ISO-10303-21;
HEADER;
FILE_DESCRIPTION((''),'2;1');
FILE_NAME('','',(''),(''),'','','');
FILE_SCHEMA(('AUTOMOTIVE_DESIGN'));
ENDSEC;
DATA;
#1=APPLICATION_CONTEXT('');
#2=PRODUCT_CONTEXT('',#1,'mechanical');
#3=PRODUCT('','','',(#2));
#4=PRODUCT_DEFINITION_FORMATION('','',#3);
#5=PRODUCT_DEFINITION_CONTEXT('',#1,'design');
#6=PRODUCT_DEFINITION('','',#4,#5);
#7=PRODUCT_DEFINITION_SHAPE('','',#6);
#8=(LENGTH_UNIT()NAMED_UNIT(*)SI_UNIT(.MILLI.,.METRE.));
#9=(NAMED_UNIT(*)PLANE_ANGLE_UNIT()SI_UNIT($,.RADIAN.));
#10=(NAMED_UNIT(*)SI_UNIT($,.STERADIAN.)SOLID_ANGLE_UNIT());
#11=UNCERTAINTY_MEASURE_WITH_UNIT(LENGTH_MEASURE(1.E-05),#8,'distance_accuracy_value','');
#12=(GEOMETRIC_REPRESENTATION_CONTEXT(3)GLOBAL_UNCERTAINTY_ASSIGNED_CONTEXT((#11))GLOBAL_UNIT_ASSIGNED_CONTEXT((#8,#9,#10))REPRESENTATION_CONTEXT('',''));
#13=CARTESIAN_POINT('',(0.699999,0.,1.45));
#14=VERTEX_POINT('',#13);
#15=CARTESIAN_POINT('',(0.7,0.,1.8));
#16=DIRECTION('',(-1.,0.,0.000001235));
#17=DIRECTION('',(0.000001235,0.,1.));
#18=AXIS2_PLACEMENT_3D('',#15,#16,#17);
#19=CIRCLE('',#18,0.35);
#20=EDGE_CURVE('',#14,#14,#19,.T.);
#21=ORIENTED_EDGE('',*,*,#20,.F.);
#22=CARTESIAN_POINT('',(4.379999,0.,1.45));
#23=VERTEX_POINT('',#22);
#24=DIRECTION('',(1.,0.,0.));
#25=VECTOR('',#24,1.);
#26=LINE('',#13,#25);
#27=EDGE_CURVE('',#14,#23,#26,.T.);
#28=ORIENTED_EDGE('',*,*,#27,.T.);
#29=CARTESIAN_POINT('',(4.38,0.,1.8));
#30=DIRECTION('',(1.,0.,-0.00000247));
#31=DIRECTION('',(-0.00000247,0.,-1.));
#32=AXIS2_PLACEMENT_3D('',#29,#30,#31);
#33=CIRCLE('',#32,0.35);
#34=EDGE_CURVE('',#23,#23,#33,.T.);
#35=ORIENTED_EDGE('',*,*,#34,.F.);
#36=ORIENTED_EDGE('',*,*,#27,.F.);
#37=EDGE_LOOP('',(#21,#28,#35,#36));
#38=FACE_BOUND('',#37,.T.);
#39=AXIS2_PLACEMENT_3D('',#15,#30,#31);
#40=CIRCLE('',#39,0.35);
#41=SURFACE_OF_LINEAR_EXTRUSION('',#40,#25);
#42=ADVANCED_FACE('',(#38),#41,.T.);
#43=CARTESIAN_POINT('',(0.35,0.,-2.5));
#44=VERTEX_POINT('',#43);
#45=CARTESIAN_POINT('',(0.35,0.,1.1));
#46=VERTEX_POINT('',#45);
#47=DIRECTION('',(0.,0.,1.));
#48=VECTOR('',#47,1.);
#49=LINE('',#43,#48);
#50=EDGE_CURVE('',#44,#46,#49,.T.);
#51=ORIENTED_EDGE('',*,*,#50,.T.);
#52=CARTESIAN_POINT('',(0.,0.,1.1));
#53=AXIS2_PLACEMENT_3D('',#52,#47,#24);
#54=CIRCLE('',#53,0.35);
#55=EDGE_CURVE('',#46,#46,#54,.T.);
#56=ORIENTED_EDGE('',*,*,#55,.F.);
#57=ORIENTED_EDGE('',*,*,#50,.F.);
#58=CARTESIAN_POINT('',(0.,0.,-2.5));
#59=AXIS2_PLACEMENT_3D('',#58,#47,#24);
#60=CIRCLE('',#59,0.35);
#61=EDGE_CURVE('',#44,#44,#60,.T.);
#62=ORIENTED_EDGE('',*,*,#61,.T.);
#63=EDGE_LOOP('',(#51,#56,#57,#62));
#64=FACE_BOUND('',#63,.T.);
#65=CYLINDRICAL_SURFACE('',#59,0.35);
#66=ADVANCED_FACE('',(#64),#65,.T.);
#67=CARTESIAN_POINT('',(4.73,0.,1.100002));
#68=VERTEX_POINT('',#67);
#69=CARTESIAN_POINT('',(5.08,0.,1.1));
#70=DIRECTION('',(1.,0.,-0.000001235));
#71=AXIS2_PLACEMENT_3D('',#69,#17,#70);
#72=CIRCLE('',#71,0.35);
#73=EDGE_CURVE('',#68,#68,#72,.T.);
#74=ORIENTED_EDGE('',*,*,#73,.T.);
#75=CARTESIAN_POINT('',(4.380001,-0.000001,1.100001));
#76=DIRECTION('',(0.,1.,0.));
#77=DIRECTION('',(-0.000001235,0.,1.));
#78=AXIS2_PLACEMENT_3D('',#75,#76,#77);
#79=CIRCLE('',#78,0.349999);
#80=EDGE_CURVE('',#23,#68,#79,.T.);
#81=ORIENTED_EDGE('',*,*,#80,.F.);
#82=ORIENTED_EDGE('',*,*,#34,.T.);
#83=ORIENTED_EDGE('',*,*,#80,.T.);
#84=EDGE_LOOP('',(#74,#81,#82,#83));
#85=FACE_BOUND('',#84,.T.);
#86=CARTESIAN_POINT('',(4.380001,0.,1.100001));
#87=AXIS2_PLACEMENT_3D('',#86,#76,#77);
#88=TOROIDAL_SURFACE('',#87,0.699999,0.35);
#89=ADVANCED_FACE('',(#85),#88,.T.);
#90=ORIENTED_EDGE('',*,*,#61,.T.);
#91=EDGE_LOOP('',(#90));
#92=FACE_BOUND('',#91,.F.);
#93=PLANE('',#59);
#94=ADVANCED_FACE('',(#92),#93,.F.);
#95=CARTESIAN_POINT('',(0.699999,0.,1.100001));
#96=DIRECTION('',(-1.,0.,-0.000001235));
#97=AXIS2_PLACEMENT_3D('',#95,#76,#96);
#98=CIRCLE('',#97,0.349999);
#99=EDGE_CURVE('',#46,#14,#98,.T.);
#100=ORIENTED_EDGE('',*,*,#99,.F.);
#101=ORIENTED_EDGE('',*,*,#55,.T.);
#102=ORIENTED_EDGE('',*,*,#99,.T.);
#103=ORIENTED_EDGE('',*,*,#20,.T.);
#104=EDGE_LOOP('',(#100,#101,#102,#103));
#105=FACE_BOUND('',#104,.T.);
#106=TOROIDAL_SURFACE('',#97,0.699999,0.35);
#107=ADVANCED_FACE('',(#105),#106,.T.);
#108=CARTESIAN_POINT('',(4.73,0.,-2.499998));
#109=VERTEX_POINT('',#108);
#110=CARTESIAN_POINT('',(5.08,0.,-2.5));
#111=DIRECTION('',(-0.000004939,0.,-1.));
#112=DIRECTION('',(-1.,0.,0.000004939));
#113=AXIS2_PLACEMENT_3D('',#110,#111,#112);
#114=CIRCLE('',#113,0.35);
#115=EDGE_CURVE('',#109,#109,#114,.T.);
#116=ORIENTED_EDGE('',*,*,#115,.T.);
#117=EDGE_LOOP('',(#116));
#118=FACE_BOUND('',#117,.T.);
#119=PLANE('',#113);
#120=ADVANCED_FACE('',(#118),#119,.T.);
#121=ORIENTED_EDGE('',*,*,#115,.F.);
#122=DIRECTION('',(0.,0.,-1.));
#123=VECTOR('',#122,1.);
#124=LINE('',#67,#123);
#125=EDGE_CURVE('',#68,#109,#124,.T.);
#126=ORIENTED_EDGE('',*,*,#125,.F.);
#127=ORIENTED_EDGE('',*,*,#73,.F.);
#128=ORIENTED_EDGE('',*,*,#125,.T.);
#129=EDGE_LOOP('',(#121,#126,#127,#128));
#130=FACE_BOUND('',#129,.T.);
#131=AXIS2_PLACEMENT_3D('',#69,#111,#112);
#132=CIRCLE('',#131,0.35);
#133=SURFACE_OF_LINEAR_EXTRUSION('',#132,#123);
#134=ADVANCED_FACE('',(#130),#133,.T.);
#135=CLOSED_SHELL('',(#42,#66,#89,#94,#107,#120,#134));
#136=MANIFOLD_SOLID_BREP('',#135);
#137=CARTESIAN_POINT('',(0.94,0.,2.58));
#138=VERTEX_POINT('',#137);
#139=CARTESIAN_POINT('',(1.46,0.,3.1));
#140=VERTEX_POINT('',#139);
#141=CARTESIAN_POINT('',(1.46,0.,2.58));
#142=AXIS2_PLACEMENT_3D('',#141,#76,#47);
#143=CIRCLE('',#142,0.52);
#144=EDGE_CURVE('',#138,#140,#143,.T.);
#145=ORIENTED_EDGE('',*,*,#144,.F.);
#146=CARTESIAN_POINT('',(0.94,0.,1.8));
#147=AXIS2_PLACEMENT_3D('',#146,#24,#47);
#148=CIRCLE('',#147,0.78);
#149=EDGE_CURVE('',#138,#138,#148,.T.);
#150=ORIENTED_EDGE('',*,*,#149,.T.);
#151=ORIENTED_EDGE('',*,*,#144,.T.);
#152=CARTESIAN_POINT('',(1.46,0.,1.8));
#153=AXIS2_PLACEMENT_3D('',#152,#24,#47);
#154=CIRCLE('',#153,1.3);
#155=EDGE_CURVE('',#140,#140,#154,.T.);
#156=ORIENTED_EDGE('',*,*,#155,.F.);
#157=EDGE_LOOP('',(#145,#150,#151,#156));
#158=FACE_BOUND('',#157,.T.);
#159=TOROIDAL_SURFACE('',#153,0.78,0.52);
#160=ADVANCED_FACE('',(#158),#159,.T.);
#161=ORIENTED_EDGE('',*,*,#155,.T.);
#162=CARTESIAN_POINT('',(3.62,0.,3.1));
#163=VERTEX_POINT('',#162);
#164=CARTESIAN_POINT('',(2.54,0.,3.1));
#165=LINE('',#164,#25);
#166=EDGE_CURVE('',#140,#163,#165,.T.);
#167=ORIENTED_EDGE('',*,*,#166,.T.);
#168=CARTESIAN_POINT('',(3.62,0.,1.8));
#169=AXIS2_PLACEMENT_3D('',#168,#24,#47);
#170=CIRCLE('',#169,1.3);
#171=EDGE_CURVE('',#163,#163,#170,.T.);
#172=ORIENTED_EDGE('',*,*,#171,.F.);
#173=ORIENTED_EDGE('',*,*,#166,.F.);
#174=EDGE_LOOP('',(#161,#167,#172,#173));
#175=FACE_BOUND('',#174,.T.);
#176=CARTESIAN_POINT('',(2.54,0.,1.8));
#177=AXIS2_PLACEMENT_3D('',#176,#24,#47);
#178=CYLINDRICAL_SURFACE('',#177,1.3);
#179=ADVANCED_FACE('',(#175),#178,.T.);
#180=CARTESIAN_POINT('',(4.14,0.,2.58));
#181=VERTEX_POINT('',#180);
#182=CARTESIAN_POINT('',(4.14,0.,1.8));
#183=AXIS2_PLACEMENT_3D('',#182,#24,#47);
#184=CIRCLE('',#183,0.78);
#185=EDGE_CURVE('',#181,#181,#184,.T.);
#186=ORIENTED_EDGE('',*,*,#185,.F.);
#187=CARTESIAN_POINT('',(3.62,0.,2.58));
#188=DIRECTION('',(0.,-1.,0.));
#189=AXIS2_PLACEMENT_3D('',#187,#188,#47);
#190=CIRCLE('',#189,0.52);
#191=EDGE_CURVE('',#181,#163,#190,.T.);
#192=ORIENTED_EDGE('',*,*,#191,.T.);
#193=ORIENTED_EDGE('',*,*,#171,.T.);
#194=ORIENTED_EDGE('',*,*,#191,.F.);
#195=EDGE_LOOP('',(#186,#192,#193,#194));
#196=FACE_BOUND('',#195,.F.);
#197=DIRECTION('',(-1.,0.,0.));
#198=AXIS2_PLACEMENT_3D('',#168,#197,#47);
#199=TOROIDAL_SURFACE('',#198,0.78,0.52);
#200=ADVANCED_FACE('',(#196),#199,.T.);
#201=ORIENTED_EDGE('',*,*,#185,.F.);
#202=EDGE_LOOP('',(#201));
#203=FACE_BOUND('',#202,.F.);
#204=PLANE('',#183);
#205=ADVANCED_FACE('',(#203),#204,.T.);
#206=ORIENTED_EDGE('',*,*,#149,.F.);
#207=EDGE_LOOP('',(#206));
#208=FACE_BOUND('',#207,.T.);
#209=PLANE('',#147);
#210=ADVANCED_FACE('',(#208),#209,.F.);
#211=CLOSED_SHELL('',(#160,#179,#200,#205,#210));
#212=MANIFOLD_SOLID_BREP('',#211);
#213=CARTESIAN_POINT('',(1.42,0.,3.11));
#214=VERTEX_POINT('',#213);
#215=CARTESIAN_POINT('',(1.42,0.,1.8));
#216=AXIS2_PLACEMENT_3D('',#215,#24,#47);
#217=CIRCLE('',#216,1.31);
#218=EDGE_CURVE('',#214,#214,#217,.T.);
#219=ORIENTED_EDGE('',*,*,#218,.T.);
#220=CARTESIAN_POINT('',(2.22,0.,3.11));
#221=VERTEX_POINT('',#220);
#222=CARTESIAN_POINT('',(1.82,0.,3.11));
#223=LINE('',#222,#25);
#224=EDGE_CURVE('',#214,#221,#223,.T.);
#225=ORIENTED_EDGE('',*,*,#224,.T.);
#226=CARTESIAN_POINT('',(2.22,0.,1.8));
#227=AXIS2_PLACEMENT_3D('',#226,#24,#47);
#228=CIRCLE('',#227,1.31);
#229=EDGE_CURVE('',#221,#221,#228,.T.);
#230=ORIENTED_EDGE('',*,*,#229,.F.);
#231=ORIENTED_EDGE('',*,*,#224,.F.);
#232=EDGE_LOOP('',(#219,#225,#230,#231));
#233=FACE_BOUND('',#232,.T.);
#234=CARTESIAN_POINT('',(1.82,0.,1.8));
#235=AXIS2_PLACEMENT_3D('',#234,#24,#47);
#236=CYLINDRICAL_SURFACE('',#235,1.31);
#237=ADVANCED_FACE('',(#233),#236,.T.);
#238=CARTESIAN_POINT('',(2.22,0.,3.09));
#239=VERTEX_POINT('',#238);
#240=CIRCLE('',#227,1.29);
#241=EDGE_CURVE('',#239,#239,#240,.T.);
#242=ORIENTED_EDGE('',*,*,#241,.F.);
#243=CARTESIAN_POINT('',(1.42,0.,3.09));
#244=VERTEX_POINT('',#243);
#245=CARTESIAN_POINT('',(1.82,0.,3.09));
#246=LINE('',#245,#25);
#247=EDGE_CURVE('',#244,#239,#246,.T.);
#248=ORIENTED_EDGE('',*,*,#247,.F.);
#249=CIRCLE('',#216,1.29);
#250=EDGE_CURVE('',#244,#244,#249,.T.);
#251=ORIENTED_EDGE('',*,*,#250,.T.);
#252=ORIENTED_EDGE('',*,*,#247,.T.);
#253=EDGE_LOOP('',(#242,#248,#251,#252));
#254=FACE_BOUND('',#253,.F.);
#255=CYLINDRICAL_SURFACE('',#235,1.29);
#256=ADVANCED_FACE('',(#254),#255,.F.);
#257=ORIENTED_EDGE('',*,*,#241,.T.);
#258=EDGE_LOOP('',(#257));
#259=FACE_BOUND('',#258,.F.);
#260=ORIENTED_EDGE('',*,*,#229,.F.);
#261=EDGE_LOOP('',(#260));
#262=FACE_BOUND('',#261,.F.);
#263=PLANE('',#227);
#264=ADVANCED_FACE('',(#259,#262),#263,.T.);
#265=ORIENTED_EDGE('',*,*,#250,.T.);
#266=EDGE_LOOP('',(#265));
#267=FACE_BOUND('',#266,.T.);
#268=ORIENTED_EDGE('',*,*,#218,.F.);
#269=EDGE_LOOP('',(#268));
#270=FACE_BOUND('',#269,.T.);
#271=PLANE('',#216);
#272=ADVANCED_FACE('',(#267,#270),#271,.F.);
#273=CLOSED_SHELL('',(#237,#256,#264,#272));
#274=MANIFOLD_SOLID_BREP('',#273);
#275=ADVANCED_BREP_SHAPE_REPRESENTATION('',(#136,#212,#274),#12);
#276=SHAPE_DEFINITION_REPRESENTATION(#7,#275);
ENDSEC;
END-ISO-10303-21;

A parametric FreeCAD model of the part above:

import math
import FreeCAD as App
import Part
import Sketcher


def edges_at(feature, points):
    """Names of the edges that pass closest to the given points."""
    edges = feature.Shape.Edges
    near = lambda p: min(range(len(edges)), key=lambda i: edges[i].distToShape(Part.Vertex(*p))[0])
    return sorted({f"Edge{near(p) + 1}" for p in points})

doc = App.newDocument("Part")
body = doc.addObject("PartDesign::Body", "Body")

sketch1 = doc.addObject("Sketcher::SketchObject", "Sketch")
body.addObject(sketch1)
sketch1.AttachmentSupport = (doc.XZ_Plane, [""])
sketch1.MapMode = "FlatFace"
sketch1.addGeometry([
    Part.LineSegment(App.Vector(0.9, 3.1, 0), App.Vector(0.9, 1.8, 0)),
    Part.LineSegment(App.Vector(0.9, 1.8, 0), App.Vector(4.1, 1.8, 0)),
    Part.LineSegment(App.Vector(4.1, 1.8, 0), App.Vector(4.1, 3.1, 0)),
    Part.LineSegment(App.Vector(4.1, 3.1, 0), App.Vector(0.9, 3.1, 0)),
], False)
sketch1.addGeometry(Part.LineSegment(App.Vector(0.9, 1.8, 0), App.Vector(4.1, 1.8, 0)), True)
sketch1.addConstraint([
    Sketcher.Constraint("Coincident", 0, 2, 1, 1),
    Sketcher.Constraint("Coincident", 1, 2, 2, 1),
    Sketcher.Constraint("Coincident", 2, 2, 3, 1),
    Sketcher.Constraint("Coincident", 3, 2, 0, 1),
    Sketcher.Constraint("Vertical", 0),
    Sketcher.Constraint("Horizontal", 1),
    Sketcher.Constraint("Vertical", 2),
    Sketcher.Constraint("Horizontal", 3),
    Sketcher.Constraint("Horizontal", 4),
    Sketcher.Constraint("Coincident", 4, 1, 0, 2),
    Sketcher.Constraint("Vertical", 2, 2, 4, 2),
    Sketcher.Constraint("DistanceX", 1, 1, 1, 2, 3.2),
    Sketcher.Constraint("DistanceY", 0, 2, 0, 1, 1.3),
    Sketcher.Constraint("DistanceY", -1, 1, 0, 2, 1.8),
    Sketcher.Constraint("DistanceX", -1, 1, 0, 2, 0.94),
])
revolution = doc.addObject("PartDesign::Revolution", "Revolution")
body.addObject(revolution)
revolution.Profile = sketch1
revolution.ReferenceAxis = (sketch1, ["Axis0"])
revolution.Angle = 360
doc.recompute()

fillet = doc.addObject("PartDesign::Fillet", "Fillet")
body.addObject(fillet)
fillet.Base = (revolution, edges_at(revolution, [(0.94, 0, 0.5), (4.14, 0, 0.5)]))
fillet.Radius = 0.52
body2 = doc.addObject("PartDesign::Body", "Body001")

sketch2 = doc.addObject("Sketcher::SketchObject", "Sketch001")
body2.addObject(sketch2)
sketch2.AttachmentSupport = (doc.getObject("XZ_Plane001"), [""])
sketch2.MapMode = "FlatFace"
sketch2.addGeometry([
    Part.LineSegment(App.Vector(1.42, 3.11, 0), App.Vector(1.42, 3.09, 0)),
    Part.LineSegment(App.Vector(1.42, 3.09, 0), App.Vector(2.22, 3.09, 0)),
    Part.LineSegment(App.Vector(2.22, 3.09, 0), App.Vector(2.22, 3.11, 0)),
    Part.LineSegment(App.Vector(2.22, 3.11, 0), App.Vector(1.42, 3.11, 0)),
], False)
sketch2.addGeometry(Part.LineSegment(App.Vector(1.42, 1.8, 0), App.Vector(2.22, 1.8, 0)), True)
sketch2.addConstraint([
    Sketcher.Constraint("Coincident", 0, 2, 1, 1),
    Sketcher.Constraint("Coincident", 1, 2, 2, 1),
    Sketcher.Constraint("Coincident", 2, 2, 3, 1),
    Sketcher.Constraint("Coincident", 3, 2, 0, 1),
    Sketcher.Constraint("Vertical", 0),
    Sketcher.Constraint("Horizontal", 1),
    Sketcher.Constraint("Vertical", 2),
    Sketcher.Constraint("Horizontal", 3),
    Sketcher.Constraint("Horizontal", 4),
    Sketcher.Constraint("Vertical", 3, 2, 4, 1),
    Sketcher.Constraint("Vertical", 2, 2, 4, 2),
    Sketcher.Constraint("DistanceX", 1, 1, 1, 2, 0.8),
    Sketcher.Constraint("DistanceY", 0, 2, 0, 1, 0.02),
    Sketcher.Constraint("DistanceY", -1, 1, 4, 1, 1.8),
    Sketcher.Constraint("DistanceX", -1, 1, 0, 2, 1.42),
    Sketcher.Constraint("DistanceY", -1, 1, 0, 2, 3.09),
])
revolution2 = doc.addObject("PartDesign::Revolution", "Revolution001")
body2.addObject(revolution2)
revolution2.Profile = sketch2
revolution2.ReferenceAxis = (sketch2, ["Axis0"])
revolution2.Angle = 360
body3 = doc.addObject("PartDesign::Body", "Body002")

sketch3 = doc.addObject("Sketcher::SketchObject", "Sketch002")
body3.addObject(sketch3)
sketch3.AttachmentSupport = (doc.getObject("XY_Plane002"), [""])
sketch3.MapMode = "FlatFace"
sketch3.AttachmentOffset = App.Placement(App.Vector(0, 0, -2), App.Rotation())
sketch3.addGeometry(Part.Circle(App.Vector(0, 0, 0), App.Vector(0, 0, 1), 0.35), False)
sketch3.addConstraint([
    Sketcher.Constraint("Coincident", 0, 3, -1, 1),
    Sketcher.Constraint("Diameter", 0, 0.7),
])

sketch4 = doc.addObject("Sketcher::SketchObject", "Sketch003")
body3.addObject(sketch4)
sketch4.AttachmentSupport = (doc.getObject("XZ_Plane002"), [""])
sketch4.MapMode = "FlatFace"
sketch4.addGeometry([
    Part.LineSegment(App.Vector(0, -2.5, 0), App.Vector(0, 1.1, 0)),
    Part.ArcOfCircle(Part.Circle(App.Vector(0.7, 1.1, 0), App.Vector(0, 0, 1), 0.7), math.radians(90), math.radians(180)),
    Part.LineSegment(App.Vector(0.7, 1.8, 0), App.Vector(4.4, 1.8, 0)),
    Part.ArcOfCircle(Part.Circle(App.Vector(4.4, 1.1, 0), App.Vector(0, 0, 1), 0.7), math.radians(0), math.radians(90)),
    Part.LineSegment(App.Vector(5.1, 1.1, 0), App.Vector(5.1, -2.5, 0)),
], False)
sketch4.addConstraint([
    Sketcher.Constraint("Tangent", 0, 2, 1, 2),
    Sketcher.Constraint("Tangent", 1, 1, 2, 1),
    Sketcher.Constraint("Tangent", 2, 2, 3, 2),
    Sketcher.Constraint("Tangent", 3, 1, 4, 1),
    Sketcher.Constraint("Vertical", 0),
    Sketcher.Constraint("Horizontal", 2),
    Sketcher.Constraint("Vertical", 4),
    Sketcher.Constraint("Equal", 1, 3),
    Sketcher.Constraint("PointOnObject", 0, 1, -2),
    Sketcher.Constraint("Horizontal", 0, 1, 4, 2),
    Sketcher.Constraint("Radius", 1, 0.699999),
    Sketcher.Constraint("DistanceY", 0, 1, 0, 2, 3.6),
    Sketcher.Constraint("DistanceX", 2, 1, 2, 2, 3.68),
    Sketcher.Constraint("DistanceY", -1, 1, 1, 3, 1.100001),
])
doc.recompute()

additivepipe = doc.addObject("PartDesign::AdditivePipe", "AdditivePipe")
body3.addObject(additivepipe)
additivepipe.Profile = sketch3
additivepipe.Spine = (sketch4, ["Edge1", "Edge2", "Edge3", "Edge4", "Edge5"])

doc.recompute()
